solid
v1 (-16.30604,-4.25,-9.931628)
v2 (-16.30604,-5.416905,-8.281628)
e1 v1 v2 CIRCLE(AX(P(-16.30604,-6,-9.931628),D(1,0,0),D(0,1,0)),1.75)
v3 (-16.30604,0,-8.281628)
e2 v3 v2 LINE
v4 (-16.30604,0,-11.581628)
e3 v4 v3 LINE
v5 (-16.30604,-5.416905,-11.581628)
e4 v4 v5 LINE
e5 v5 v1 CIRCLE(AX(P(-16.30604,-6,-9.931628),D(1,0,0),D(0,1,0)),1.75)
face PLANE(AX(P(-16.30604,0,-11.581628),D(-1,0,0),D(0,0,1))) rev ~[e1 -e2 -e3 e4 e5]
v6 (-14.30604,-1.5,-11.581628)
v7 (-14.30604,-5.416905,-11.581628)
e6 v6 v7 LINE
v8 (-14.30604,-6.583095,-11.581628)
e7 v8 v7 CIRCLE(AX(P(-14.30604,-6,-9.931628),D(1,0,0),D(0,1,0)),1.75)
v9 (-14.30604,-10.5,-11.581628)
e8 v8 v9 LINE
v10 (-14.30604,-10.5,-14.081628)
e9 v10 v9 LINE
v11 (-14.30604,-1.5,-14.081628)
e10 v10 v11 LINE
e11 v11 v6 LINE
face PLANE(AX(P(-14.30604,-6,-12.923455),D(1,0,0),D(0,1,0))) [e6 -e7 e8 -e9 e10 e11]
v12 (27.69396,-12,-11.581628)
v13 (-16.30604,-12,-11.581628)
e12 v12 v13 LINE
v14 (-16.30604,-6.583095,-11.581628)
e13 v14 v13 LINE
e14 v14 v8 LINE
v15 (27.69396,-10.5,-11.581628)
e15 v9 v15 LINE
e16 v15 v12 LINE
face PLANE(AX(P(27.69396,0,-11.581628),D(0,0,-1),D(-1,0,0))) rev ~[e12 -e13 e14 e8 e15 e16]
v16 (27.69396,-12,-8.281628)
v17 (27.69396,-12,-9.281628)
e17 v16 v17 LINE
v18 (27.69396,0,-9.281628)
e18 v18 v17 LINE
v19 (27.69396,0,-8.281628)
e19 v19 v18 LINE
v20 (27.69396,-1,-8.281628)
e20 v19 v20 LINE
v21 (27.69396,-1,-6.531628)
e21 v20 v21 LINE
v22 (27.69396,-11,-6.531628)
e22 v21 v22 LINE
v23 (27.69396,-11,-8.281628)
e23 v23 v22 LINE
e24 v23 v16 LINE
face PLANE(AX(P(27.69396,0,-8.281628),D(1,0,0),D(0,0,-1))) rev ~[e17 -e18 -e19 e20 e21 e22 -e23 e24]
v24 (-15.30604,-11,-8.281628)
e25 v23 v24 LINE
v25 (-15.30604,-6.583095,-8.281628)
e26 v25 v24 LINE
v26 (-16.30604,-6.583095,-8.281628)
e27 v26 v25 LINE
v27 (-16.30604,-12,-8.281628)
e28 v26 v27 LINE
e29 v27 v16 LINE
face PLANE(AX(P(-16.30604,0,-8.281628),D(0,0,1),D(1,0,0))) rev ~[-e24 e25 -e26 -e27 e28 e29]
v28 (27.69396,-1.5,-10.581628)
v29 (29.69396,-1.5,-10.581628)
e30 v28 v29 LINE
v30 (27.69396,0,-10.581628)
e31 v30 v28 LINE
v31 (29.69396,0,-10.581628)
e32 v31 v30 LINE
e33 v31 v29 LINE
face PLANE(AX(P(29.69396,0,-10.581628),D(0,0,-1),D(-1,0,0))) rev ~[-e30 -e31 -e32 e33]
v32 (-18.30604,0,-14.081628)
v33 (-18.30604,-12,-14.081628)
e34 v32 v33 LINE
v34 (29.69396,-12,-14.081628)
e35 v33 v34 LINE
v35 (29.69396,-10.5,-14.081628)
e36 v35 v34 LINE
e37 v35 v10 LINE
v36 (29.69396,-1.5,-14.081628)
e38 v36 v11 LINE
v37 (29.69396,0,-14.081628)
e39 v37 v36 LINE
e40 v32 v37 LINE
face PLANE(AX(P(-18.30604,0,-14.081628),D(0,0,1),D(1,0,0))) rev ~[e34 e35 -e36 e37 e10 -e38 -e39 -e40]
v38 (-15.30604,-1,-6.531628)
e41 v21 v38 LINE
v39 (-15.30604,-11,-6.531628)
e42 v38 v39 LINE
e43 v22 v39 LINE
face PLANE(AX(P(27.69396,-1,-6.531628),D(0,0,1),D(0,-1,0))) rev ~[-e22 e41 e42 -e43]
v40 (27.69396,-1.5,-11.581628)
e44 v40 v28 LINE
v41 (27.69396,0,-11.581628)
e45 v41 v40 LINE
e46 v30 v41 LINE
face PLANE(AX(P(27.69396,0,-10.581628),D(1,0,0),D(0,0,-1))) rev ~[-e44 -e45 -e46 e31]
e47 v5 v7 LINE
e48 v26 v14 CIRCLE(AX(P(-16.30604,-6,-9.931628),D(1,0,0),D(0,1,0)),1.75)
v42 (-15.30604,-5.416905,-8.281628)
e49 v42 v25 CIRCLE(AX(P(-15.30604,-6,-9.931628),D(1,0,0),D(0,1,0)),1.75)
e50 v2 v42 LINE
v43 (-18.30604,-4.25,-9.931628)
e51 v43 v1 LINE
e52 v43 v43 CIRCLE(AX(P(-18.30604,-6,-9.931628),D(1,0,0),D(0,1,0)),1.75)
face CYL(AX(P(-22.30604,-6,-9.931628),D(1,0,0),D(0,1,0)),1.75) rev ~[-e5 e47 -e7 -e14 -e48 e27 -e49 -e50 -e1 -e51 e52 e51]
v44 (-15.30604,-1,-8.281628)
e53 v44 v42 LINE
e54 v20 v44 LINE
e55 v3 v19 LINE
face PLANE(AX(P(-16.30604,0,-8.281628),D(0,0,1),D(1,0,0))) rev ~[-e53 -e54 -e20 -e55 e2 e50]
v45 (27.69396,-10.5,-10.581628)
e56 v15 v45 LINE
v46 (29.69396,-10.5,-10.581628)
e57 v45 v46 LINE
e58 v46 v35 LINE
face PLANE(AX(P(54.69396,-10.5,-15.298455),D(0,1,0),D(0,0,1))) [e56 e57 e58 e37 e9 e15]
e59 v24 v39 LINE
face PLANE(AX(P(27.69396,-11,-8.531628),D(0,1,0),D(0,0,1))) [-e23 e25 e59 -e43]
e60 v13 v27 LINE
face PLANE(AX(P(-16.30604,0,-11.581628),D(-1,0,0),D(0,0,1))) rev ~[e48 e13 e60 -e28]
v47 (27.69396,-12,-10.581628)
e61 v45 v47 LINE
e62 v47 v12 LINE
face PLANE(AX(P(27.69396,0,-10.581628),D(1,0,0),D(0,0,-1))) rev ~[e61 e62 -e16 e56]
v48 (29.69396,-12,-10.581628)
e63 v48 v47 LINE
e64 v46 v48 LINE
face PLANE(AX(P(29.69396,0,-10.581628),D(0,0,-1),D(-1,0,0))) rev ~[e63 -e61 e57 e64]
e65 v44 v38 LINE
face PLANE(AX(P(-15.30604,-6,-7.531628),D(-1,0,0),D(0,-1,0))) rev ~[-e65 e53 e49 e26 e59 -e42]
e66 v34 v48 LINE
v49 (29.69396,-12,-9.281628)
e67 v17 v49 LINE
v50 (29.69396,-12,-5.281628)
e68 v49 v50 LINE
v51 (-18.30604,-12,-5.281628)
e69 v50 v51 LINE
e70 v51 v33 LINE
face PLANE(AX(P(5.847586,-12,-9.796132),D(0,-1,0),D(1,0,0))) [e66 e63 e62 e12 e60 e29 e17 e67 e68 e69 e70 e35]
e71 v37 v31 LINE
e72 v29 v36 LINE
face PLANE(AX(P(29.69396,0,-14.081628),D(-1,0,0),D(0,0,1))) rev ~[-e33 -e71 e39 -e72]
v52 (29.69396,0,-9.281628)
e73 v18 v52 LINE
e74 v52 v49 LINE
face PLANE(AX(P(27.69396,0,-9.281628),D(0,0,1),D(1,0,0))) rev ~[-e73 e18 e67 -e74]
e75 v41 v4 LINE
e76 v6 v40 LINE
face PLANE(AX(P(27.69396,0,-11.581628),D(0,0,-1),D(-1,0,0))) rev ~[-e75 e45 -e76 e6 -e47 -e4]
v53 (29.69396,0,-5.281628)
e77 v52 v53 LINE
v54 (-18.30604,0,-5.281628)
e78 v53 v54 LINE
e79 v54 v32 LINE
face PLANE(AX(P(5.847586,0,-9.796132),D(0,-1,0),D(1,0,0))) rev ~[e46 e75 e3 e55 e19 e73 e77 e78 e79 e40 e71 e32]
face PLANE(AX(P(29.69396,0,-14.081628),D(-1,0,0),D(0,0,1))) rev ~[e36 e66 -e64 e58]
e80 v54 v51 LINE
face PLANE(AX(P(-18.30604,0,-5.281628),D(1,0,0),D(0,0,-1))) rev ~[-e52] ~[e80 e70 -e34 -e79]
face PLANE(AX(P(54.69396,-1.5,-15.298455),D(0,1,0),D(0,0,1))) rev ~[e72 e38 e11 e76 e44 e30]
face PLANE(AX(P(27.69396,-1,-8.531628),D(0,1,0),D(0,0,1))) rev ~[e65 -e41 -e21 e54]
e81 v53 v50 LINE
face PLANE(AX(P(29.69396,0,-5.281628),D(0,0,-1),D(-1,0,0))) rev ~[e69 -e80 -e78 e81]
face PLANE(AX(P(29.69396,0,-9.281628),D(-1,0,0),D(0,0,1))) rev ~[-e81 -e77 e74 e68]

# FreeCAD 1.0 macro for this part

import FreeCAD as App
import Part
import Sketcher


def add_polygon(sketch, points):
    """Adds a closed chain of lines whose ends are joined by coincident constraints."""
    first, n = sketch.GeometryCount, len(points)
    for a, b in zip(points, points[1:] + points[:1]):
        sketch.addGeometry(Part.LineSegment(App.Vector(*a, 0), App.Vector(*b, 0)), False)
    for i in range(n):
        sketch.addConstraint(Sketcher.Constraint("Coincident", first + i, 2, first + (i + 1) % n, 1))

doc = App.newDocument("Part")
params = doc.addObject("Spreadsheet::Sheet", "Params")
for row, (alias, value) in enumerate([
    ("sketch1_width", "48 mm"),
    ("sketch1_width2", "2 mm"),
    ("sketch1_width3", "44 mm"),
    ("sketch1_height", "1 mm"),
    ("sketch1_height2", "4 mm"),
    ("pad1_length", "12 mm"),
    ("sketch2_width", "10 mm"),
    ("sketch2_height", "2 mm"),
    ("pocket1_length", "43 mm"),
    ("sketch3_width", "9 mm"),
    ("sketch3_height", "4.75 mm"),
    ("pocket2_length", "69 mm"),
    ("sketch4_diameter", "3.5 mm"),
    ("hole_diameter", "3.5 mm"),
    ("hole_depth", "4 mm"),
], start=1):
    params.set(f"A{row}", alias)
    params.set(f"B{row}", "=" + value)
    params.setAlias(f"B{row}", alias)

body = doc.addObject("PartDesign::Body", "Body")

# Sketch on XZ plane
sketch1 = doc.addObject("Sketcher::SketchObject", "Sketch")
body.addObject(sketch1)
sketch1.AttachmentSupport = (doc.XZ_Plane, [""])
sketch1.MapMode = "FlatFace"
add_polygon(sketch1, [(29.7, -5.3), (-18.3, -5.3), (-18.3, -14.1), (29.7, -14.1), (29.7, -10.6), (27.7, -10.6), (27.7, -11.6), (-16.3, -11.6), (-16.3, -8.3), (27.7, -8.3), (27.7, -9.3), (29.7, -9.3)])  # lines 0-11
sketch1.addConstraint([
    Sketcher.Constraint("Horizontal", 0),
    Sketcher.Constraint("Vertical", 1),
    Sketcher.Constraint("Horizontal", 2),
    Sketcher.Constraint("Vertical", 3),
    Sketcher.Constraint("Horizontal", 4),
    Sketcher.Constraint("Vertical", 5),
    Sketcher.Constraint("Horizontal", 6),
    Sketcher.Constraint("Vertical", 7),
    Sketcher.Constraint("Horizontal", 8),
    Sketcher.Constraint("Vertical", 9),
    Sketcher.Constraint("Horizontal", 10),
    Sketcher.Constraint("Vertical", 11),
    Sketcher.Constraint("Vertical", 5, 2, 8, 2),
    Sketcher.Constraint("Vertical", 3, 2, 10, 2),
    Sketcher.Constraint("Equal", 5, 9),
    Sketcher.Constraint("DistanceX", 0, 2, 0, 1, 48.0),
    Sketcher.Constraint("DistanceX", 4, 2, 4, 1, 2.0),
    Sketcher.Constraint("DistanceX", 6, 2, 6, 1, 44.0),
    Sketcher.Constraint("DistanceY", 5, 2, 5, 1, 1.0),
    Sketcher.Constraint("DistanceY", 11, 1, 11, 2, 4.0),
    Sketcher.Constraint("DistanceY", 1, 2, 1, 1, 8.8),
    Sketcher.Constraint("DistanceY", 3, 1, 3, 2, 3.5),
    Sketcher.Constraint("DistanceX", 0, 2, -1, 1, 18.30604),
    Sketcher.Constraint("DistanceY", 0, 2, -1, 1, 5.281628),
])
sketch1.setExpression("Constraints[27]", "Params.sketch1_width")
sketch1.setExpression("Constraints[28]", "Params.sketch1_width2")
sketch1.setExpression("Constraints[29]", "Params.sketch1_width3")
sketch1.setExpression("Constraints[30]", "Params.sketch1_height")
sketch1.setExpression("Constraints[31]", "Params.sketch1_height2")
pad1 = doc.addObject("PartDesign::Pad", "Pad")
body.addObject(pad1)
pad1.Profile = sketch1
pad1.setExpression("Length", "Params.pad1_length")

# Sketch on YZ plane
sketch2 = doc.addObject("Sketcher::SketchObject", "Sketch001")
body.addObject(sketch2)
sketch2.AttachmentSupport = (doc.YZ_Plane, [""])
sketch2.MapMode = "FlatFace"
sketch2.AttachmentOffset = App.Placement(App.Vector(0, 0, 27.69396), App.Rotation())
add_polygon(sketch2, [(-1, -6.5), (-1, -8.5), (-11, -8.5), (-11, -6.5)])  # lines 0-3
sketch2.addConstraint([
    Sketcher.Constraint("Vertical", 0),
    Sketcher.Constraint("Horizontal", 1),
    Sketcher.Constraint("Vertical", 2),
    Sketcher.Constraint("Horizontal", 3),
    Sketcher.Constraint("DistanceX", 1, 2, 1, 1, 10.0),
    Sketcher.Constraint("DistanceY", 0, 2, 0, 1, 2.0),
    Sketcher.Constraint("DistanceX", 0, 2, -1, 1, 1.0),
    Sketcher.Constraint("DistanceY", 0, 2, -1, 1, 8.531628),
])
sketch2.setExpression("Constraints[8]", "Params.sketch2_width")
sketch2.setExpression("Constraints[9]", "Params.sketch2_height")
pocket1 = doc.addObject("PartDesign::Pocket", "Pocket")
body.addObject(pocket1)
pocket1.Profile = sketch2
pocket1.setExpression("Length", "Params.pocket1_length")

# Sketch on YZ plane
sketch3 = doc.addObject("Sketcher::SketchObject", "Sketch002")
body.addObject(sketch3)
sketch3.AttachmentSupport = (doc.YZ_Plane, [""])
sketch3.MapMode = "FlatFace"
sketch3.AttachmentOffset = App.Placement(App.Vector(0, 0, 54.69396), App.Rotation())
add_polygon(sketch3, [(-10.5, -10.5), (-10.5, -15.3), (-1.5, -15.3), (-1.5, -10.5)])  # lines 0-3
sketch3.addConstraint([
    Sketcher.Constraint("Vertical", 0),
    Sketcher.Constraint("Horizontal", 1),
    Sketcher.Constraint("Vertical", 2),
    Sketcher.Constraint("Horizontal", 3),
    Sketcher.Constraint("DistanceX", 1, 1, 1, 2, 9.0),
    Sketcher.Constraint("DistanceY", 0, 2, 0, 1, 4.75),
    Sketcher.Constraint("DistanceX", 0, 2, -1, 1, 10.5),
    Sketcher.Constraint("DistanceY", 0, 2, -1, 1, 15.298455),
])
sketch3.setExpression("Constraints[8]", "Params.sketch3_width")
sketch3.setExpression("Constraints[9]", "Params.sketch3_height")
pocket2 = doc.addObject("PartDesign::Pocket", "Pocket001")
body.addObject(pocket2)
pocket2.Profile = sketch3
pocket2.setExpression("Length", "Params.pocket2_length")

# Sketch on YZ plane
sketch4 = doc.addObject("Sketcher::SketchObject", "Sketch003")
body.addObject(sketch4)
sketch4.AttachmentSupport = (doc.YZ_Plane, [""])
sketch4.MapMode = "FlatFace"
sketch4.AttachmentOffset = App.Placement(App.Vector(0, 0, -18.30604), App.Rotation())
sketch4.addGeometry(Part.Circle(App.Vector(-6, -9.9, 0), App.Vector(0, 0, 1), 1.8), False)
sketch4.addConstraint([
    Sketcher.Constraint("Diameter", 0, 3.5),
    Sketcher.Constraint("DistanceX", 0, 3, -1, 1, 6.0),
    Sketcher.Constraint("DistanceY", 0, 3, -1, 1, 9.931628),
])
sketch4.setExpression("Constraints[0]", "Params.sketch4_diameter")
doc.recompute()
hole = doc.addObject("PartDesign::Hole", "Hole")
body.addObject(hole)
hole.Profile = sketch4
hole.ThreadType = "None"
hole.setExpression("Diameter", "Params.hole_diameter")
hole.DepthType = "Dimension"
hole.setExpression("Depth", "Params.hole_depth")
hole.DrillPoint = "Angled"
hole.DrillPointAngle = 118
hole.Reversed = True

doc.recompute()
